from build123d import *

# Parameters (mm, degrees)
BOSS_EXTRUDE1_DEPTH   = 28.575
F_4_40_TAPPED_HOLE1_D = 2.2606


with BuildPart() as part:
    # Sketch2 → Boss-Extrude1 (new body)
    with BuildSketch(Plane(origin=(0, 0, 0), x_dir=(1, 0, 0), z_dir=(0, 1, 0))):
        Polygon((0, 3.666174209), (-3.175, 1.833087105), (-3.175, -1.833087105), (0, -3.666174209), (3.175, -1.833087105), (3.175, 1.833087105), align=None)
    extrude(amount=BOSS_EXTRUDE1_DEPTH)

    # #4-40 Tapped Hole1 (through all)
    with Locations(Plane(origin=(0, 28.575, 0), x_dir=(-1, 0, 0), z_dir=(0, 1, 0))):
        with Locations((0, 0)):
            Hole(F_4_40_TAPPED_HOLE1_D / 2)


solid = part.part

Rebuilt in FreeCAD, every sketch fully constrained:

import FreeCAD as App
import Part
import Sketcher
Q = App.Units.Quantity


def add_polygon(sketch, points):
    """Adds a closed chain of lines whose ends are joined by coincident constraints."""
    first, n = sketch.GeometryCount, len(points)
    for a, b in zip(points, points[1:] + points[:1]):
        sketch.addGeometry(Part.LineSegment(App.Vector(*a, 0), App.Vector(*b, 0)), False)
    for i in range(n):
        sketch.addConstraint(Sketcher.Constraint("Coincident", first + i, 2, first + (i + 1) % n, 1))

doc = App.newDocument("Part")
params = doc.addObject("Spreadsheet::Sheet", "Params")
for row, (alias, value) in enumerate([
    ("pad1_length", "1.125 in"),
    ("sketch2_diameter", "0.089 in"),
    ("hole_diameter", "0.089 in"),
], start=1):
    params.set(f"A{row}", alias)
    params.set(f"B{row}", "=" + value)
    params.setAlias(f"B{row}", alias)

body = doc.addObject("PartDesign::Body", "Body")

# Sketch on XZ plane
sketch1 = body.newObject("Sketcher::SketchObject", "Sketch")
sketch1.AttachmentSupport = (doc.getObject("XZ_Plane"), [""])
sketch1.MapMode = "FlatFace"
add_polygon(sketch1, [(0, -3.7), (-3.2, -1.8), (-3.2, 1.8), (0, 3.7), (3.2, 1.8), (3.2, -1.8)])  # lines 0-5
sketch1.addConstraint([
    Sketcher.Constraint("Vertical", 1),
    Sketcher.Constraint("Vertical", 4),
    Sketcher.Constraint("Symmetric", 0, 2, 3, 2, -1, 1),
    Sketcher.Constraint("Symmetric", 2, 2, 5, 2, -1, 1),
    Sketcher.Constraint("PointOnObject", 2, 2, -2),
    Sketcher.Constraint("Parallel", 2, 5),
    Sketcher.Constraint("Horizontal", 1, 2, 3, 2),
    Sketcher.Constraint("Angle", 0, Q("150 deg")),
    Sketcher.Constraint("DistanceX", 1, 2, 3, 2, Q("0.25 in")),
    Sketcher.Constraint("DistanceY", 1, 1, 1, 2, 3.666174),
])
pad1 = body.newObject("PartDesign::Pad", "Pad")
pad1.Profile = sketch1
pad1.setExpression("Length", "Params.pad1_length")
pad1.Reversed = True

# Sketch on XZ plane
sketch2 = body.newObject("Sketcher::SketchObject", "Sketch001")
sketch2.AttachmentSupport = (doc.getObject("XZ_Plane"), [""])
sketch2.MapMode = "FlatFace"
sketch2.AttachmentOffset = App.Placement(App.Vector(0, 0, -1.125 * 25.4), App.Rotation())
sketch2.addGeometry(Part.Circle(App.Vector(0, 0, 0), App.Vector(0, 0, 1), 1.1), False)
sketch2.addConstraint([
    Sketcher.Constraint("Coincident", 0, 3, -1, 1),
    Sketcher.Constraint("Diameter", 0, Q("0.089 in")),
])
sketch2.setExpression("Constraints[1]", "Params.sketch2_diameter")
doc.recompute()
hole = body.newObject("PartDesign::Hole", "Hole")
hole.Profile = sketch2
hole.ThreadType = "None"
hole.setExpression("Diameter", "Params.hole_diameter")
hole.DepthType = "ThroughAll"
hole.Reversed = True

doc.recompute()
